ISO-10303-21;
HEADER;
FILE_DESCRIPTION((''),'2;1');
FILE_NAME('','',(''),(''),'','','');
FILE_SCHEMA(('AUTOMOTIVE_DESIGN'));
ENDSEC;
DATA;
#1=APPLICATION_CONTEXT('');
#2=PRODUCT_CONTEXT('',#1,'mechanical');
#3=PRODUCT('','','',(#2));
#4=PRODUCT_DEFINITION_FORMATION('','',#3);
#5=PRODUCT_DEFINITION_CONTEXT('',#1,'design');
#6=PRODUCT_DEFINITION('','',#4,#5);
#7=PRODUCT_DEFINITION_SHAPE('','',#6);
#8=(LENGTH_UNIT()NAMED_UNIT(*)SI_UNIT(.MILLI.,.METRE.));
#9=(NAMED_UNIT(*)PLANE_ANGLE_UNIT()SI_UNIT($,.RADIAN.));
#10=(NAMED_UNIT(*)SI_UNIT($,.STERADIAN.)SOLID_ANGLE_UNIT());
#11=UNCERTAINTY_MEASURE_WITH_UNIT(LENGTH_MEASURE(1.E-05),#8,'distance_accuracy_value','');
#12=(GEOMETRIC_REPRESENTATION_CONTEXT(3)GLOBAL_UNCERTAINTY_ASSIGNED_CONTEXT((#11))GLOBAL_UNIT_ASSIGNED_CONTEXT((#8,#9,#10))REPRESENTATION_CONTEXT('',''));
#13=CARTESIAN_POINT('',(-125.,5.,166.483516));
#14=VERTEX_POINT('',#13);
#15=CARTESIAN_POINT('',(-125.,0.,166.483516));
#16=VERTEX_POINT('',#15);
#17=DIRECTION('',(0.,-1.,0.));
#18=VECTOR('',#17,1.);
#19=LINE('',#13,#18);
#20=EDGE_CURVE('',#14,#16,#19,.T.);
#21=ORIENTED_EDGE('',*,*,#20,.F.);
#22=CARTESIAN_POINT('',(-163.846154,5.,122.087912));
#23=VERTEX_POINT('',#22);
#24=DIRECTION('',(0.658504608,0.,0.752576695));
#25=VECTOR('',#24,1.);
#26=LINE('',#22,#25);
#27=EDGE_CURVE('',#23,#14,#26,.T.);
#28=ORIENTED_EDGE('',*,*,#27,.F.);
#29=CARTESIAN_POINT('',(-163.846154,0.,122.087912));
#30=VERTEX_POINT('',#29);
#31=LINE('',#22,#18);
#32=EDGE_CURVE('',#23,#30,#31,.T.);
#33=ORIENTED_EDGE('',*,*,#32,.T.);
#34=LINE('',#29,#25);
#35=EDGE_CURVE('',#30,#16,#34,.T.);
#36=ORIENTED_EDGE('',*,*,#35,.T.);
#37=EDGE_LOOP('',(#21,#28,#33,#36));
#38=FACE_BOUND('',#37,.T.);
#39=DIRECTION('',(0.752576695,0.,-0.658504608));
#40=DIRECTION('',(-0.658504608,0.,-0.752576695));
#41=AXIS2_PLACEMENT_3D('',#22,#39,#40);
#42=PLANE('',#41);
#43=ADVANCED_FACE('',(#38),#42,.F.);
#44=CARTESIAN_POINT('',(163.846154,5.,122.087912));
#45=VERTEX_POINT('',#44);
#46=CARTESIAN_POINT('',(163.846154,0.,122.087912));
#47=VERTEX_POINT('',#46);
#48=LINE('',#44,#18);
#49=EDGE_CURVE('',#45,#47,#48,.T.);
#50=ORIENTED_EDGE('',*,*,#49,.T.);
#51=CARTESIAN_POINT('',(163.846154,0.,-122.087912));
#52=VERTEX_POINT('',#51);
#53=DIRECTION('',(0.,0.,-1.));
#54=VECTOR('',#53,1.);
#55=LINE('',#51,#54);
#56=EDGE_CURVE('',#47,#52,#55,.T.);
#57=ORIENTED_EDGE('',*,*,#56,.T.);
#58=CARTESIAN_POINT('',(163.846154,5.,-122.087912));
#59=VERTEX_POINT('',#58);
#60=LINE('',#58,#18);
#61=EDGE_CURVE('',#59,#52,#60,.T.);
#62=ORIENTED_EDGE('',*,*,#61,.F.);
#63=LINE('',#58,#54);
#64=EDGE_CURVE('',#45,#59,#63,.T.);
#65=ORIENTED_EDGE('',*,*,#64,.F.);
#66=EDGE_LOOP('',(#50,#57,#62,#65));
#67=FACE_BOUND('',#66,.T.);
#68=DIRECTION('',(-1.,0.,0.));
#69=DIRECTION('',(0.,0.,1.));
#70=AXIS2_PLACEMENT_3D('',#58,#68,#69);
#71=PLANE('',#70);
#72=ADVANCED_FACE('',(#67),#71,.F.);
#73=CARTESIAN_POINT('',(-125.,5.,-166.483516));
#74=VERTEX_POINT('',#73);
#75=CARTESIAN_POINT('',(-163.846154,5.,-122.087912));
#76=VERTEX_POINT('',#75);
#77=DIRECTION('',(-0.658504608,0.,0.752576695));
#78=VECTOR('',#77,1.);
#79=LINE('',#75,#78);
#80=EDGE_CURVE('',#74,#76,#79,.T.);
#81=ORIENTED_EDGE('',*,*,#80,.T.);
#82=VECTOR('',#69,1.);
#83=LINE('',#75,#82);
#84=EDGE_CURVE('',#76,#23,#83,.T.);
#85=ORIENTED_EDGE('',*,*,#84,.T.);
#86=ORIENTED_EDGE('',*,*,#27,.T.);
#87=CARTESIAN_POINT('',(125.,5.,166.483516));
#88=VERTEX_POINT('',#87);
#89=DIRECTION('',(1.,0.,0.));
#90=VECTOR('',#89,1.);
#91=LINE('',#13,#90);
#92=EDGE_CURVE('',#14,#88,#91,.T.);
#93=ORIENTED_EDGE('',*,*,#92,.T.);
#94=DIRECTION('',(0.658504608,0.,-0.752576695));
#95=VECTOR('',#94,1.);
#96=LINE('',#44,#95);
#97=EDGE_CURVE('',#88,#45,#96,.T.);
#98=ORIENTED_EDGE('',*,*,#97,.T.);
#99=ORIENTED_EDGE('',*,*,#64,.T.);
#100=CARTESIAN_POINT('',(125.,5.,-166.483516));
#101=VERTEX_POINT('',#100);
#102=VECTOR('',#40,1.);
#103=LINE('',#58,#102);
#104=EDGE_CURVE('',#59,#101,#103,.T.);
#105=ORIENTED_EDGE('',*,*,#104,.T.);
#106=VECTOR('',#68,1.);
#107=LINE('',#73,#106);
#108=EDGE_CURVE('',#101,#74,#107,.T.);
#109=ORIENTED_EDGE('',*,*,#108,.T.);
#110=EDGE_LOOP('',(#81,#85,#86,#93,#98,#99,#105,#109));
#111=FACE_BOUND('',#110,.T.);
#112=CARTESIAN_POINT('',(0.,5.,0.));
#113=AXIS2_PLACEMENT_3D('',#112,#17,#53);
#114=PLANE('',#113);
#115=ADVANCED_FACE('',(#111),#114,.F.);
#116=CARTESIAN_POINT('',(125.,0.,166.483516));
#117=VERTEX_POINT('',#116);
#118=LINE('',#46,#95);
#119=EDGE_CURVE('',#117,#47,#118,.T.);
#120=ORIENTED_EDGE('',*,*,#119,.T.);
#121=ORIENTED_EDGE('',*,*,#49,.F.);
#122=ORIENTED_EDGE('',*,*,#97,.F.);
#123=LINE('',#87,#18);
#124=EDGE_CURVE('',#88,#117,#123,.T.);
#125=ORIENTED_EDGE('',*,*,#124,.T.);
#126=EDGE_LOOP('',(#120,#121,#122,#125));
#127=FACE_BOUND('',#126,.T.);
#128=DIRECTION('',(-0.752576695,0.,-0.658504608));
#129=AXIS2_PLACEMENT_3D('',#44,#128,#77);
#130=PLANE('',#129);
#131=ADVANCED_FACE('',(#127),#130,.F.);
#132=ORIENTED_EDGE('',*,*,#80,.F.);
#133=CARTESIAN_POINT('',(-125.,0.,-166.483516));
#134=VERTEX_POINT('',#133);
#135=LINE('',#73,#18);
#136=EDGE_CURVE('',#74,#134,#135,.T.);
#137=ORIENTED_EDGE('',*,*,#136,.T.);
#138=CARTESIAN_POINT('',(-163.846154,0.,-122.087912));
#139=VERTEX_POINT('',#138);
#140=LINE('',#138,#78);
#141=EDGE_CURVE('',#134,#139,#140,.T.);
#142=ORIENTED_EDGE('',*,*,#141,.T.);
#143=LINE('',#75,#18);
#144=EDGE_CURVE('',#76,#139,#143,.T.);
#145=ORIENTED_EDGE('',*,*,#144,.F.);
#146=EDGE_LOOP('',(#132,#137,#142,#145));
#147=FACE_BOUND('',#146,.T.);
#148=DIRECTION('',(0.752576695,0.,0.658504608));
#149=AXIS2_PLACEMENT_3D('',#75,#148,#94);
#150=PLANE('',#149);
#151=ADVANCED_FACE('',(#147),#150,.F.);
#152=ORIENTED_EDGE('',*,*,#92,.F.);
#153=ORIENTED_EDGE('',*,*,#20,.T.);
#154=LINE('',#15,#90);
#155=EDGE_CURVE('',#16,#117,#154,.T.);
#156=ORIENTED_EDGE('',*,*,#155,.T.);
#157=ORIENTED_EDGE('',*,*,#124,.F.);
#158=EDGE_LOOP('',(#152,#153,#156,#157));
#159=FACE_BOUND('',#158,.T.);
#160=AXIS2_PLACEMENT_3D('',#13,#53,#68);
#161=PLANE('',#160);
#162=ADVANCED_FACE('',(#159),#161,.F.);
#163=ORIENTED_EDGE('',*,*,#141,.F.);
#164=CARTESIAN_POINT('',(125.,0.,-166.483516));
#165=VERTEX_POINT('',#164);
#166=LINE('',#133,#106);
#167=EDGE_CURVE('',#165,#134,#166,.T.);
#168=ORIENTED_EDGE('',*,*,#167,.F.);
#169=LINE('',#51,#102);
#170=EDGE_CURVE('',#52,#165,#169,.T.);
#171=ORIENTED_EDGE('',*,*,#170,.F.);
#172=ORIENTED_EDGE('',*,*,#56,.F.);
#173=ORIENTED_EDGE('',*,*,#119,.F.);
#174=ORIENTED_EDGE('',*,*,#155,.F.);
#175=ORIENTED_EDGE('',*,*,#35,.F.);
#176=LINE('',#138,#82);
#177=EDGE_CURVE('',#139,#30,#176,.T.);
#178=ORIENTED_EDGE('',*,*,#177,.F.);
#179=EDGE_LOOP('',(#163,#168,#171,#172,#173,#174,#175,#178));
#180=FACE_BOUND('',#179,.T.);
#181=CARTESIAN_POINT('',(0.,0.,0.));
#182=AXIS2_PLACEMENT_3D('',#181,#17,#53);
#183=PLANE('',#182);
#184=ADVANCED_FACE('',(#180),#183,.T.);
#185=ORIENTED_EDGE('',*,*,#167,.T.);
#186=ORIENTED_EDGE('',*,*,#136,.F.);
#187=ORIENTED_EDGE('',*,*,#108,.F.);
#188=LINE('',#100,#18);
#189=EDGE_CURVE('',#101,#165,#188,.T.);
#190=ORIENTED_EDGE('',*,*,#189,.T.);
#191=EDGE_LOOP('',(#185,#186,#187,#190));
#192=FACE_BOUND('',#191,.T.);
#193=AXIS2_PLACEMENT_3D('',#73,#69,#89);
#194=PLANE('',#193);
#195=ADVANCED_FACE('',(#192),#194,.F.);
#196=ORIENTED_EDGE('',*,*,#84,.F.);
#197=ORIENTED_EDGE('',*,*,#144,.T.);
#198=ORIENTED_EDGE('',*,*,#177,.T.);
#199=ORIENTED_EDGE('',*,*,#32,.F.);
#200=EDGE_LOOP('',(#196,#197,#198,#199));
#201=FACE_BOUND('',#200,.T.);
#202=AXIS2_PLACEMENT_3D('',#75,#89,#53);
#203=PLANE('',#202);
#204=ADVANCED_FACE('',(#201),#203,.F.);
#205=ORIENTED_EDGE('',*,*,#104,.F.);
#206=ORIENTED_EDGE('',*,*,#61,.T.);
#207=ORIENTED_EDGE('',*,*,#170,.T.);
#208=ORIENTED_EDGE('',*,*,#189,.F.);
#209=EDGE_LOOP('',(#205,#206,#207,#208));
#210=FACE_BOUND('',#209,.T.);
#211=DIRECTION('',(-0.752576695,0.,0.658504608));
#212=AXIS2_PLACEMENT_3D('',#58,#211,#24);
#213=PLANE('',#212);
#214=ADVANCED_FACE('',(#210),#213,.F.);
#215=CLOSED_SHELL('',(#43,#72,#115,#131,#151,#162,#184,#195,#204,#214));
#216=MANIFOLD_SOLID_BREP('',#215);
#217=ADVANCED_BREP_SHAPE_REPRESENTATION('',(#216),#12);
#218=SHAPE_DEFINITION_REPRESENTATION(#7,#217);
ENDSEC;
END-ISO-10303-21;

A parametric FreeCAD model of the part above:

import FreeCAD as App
import Part
import Sketcher
from FreeCAD import Vector
Q = App.Units.Quantity

doc = App.newDocument("Part")
body = doc.addObject("PartDesign::Body", "Body")

# Sketch on XZ plane
sketch1 = doc.addObject("Sketcher::SketchObject", "Sketch")
body.addObject(sketch1)
sketch1.AttachmentSupport = (doc.XZ_Plane, [""])
sketch1.MapMode = "FlatFace"
sketch1.addGeometry(Part.LineSegment(Vector(125, -166.483516, 0), Vector(-125, -166.483516, 0)), False)
sketch1.addGeometry(Part.LineSegment(Vector(-125, -166.483516, 0), Vector(-163.846154, -122.087912, 0)), False)
sketch1.addGeometry(Part.LineSegment(Vector(-163.846154, -122.087912, 0), Vector(-163.846154, 122.087912, 0)), False)
sketch1.addGeometry(Part.LineSegment(Vector(-163.846154, 122.087912, 0), Vector(-125, 166.483516, 0)), False)
sketch1.addGeometry(Part.LineSegment(Vector(-125, 166.483516, 0), Vector(125, 166.483516, 0)), False)
sketch1.addGeometry(Part.LineSegment(Vector(125, 166.483516, 0), Vector(163.846154, 122.087912, 0)), False)
sketch1.addGeometry(Part.LineSegment(Vector(163.846154, 122.087912, 0), Vector(163.846154, -122.087912, 0)), False)
sketch1.addGeometry(Part.LineSegment(Vector(163.846154, -122.087912, 0), Vector(125, -166.483516, 0)), False)
sketch1.addConstraint(Sketcher.Constraint("Coincident", 0, 2, 1, 1))
sketch1.addConstraint(Sketcher.Constraint("Coincident", 1, 2, 2, 1))
sketch1.addConstraint(Sketcher.Constraint("Coincident", 2, 2, 3, 1))
sketch1.addConstraint(Sketcher.Constraint("Coincident", 3, 2, 4, 1))
sketch1.addConstraint(Sketcher.Constraint("Coincident", 4, 2, 5, 1))
sketch1.addConstraint(Sketcher.Constraint("Coincident", 5, 2, 6, 1))
sketch1.addConstraint(Sketcher.Constraint("Coincident", 6, 2, 7, 1))
sketch1.addConstraint(Sketcher.Constraint("Coincident", 7, 2, 0, 1))
sketch1.addConstraint(Sketcher.Constraint("Horizontal", 0))
sketch1.addConstraint(Sketcher.Constraint("Vertical", 2))
sketch1.addConstraint(Sketcher.Constraint("Horizontal", 4))
sketch1.addConstraint(Sketcher.Constraint("Vertical", 6))
sketch1.addConstraint(Sketcher.Constraint("Symmetric", 0, 2, 4, 2, -1, 1))
sketch1.addConstraint(Sketcher.Constraint("Symmetric", 1, 2, 5, 2, -1, 1))
sketch1.addConstraint(Sketcher.Constraint("Parallel", 3, 7))
sketch1.addConstraint(Sketcher.Constraint("Horizontal", 2, 2, 5, 2))
sketch1.addConstraint(Sketcher.Constraint("Horizontal", 1, 2, 6, 2))
sketch1.addConstraint(Sketcher.Constraint("Vertical", 0, 2, 3, 2))
sketch1.addConstraint(Sketcher.Constraint("DistanceX", 0, 2, 0, 1, Q("250 mm")))
sketch1.addConstraint(Sketcher.Constraint("Distance", 1, Q("58.991469 mm")))
sketch1.addConstraint(Sketcher.Constraint("DistanceY", 2, 1, 2, 2, Q("244.175824 mm")))
sketch1.addConstraint(Sketcher.Constraint("DistanceY", 0, 2, 2, 2, Q("288.571429 mm")))
pad1 = doc.addObject("PartDesign::Pad", "Pad")
body.addObject(pad1)
pad1.Profile = sketch1
pad1.Length = 5
pad1.Reversed = True

doc.recompute()
